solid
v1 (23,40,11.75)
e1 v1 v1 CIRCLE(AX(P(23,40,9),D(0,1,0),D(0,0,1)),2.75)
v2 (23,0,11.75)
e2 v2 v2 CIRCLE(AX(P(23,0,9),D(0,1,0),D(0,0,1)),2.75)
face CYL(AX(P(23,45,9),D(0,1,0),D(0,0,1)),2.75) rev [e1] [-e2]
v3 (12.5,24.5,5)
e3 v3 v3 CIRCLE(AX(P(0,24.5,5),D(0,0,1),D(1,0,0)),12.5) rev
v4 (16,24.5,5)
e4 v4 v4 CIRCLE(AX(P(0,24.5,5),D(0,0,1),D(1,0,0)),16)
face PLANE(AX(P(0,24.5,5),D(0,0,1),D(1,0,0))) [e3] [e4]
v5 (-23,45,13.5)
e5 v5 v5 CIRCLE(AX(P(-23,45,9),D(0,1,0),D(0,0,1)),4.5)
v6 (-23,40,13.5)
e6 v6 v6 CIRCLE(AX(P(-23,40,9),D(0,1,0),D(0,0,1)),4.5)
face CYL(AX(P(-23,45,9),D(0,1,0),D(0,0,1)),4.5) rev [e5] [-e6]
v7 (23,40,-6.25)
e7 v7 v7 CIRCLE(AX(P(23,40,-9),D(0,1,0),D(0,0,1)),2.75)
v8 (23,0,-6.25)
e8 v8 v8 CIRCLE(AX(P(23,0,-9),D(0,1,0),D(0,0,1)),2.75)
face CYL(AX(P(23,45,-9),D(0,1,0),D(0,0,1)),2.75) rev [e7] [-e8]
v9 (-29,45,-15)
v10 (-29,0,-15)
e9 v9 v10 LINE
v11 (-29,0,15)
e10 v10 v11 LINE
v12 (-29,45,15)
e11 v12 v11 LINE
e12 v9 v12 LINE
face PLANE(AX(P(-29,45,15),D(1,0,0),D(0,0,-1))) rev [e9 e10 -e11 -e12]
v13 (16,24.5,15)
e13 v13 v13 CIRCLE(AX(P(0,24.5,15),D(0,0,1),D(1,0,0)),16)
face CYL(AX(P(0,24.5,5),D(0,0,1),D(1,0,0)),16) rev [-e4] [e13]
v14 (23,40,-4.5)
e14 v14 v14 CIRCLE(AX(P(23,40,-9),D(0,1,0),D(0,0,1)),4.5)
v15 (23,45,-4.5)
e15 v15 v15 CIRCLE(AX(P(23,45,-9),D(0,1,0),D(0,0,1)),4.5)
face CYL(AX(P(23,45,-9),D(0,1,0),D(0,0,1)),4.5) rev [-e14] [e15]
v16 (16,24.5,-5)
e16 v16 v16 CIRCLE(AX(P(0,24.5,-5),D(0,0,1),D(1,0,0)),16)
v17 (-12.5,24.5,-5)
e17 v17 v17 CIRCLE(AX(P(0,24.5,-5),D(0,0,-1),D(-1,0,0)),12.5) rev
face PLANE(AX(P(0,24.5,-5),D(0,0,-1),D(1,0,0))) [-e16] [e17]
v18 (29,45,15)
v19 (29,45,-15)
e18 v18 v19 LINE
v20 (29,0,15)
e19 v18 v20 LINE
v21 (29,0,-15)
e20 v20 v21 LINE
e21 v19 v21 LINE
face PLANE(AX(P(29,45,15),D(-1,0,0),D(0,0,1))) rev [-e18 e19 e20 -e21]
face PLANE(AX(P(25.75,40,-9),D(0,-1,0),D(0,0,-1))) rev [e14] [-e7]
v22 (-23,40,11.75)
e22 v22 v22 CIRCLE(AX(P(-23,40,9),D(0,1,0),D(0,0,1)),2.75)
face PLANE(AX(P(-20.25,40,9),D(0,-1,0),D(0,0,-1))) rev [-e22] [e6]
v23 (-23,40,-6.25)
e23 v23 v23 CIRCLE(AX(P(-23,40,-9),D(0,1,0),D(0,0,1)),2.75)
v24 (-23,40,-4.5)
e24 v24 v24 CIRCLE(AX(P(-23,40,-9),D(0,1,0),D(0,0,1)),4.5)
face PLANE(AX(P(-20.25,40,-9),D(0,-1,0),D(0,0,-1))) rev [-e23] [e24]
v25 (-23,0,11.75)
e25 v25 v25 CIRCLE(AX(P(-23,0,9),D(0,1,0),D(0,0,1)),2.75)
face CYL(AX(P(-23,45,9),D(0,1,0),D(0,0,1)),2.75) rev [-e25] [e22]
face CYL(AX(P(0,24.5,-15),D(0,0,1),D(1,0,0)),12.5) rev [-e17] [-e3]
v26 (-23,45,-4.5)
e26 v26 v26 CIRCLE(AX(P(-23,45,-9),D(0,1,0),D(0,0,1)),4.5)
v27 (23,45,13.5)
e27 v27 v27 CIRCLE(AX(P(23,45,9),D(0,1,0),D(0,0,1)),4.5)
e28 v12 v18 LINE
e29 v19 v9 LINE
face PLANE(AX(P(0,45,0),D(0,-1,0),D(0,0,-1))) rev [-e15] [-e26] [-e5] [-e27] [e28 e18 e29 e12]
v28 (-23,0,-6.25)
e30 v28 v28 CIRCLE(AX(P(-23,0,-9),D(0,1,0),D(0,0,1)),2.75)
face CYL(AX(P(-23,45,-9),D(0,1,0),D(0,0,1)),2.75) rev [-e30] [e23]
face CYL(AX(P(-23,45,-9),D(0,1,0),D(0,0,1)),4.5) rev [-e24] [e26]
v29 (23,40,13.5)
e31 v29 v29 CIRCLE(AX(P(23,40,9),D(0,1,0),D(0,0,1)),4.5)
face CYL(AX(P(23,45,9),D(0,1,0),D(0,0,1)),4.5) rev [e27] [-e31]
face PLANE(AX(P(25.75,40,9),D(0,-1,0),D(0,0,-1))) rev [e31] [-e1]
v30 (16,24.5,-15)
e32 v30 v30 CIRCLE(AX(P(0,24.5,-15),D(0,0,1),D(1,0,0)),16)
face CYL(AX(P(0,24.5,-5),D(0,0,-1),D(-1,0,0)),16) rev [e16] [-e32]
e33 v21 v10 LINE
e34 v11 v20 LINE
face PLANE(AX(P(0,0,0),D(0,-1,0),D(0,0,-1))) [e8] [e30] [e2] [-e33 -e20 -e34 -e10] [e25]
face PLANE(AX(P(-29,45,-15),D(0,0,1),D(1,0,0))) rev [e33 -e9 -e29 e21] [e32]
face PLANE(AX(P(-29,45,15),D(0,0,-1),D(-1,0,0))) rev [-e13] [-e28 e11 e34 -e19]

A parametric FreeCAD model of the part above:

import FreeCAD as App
import Part
import Sketcher

doc = App.newDocument("Part")
body = doc.addObject("PartDesign::Body", "Body")

# Sketch on XZ plane
sketch1 = body.newObject("Sketcher::SketchObject", "Sketch")
sketch1.AttachmentSupport = (doc.getObject("XZ_Plane"), [""])
sketch1.MapMode = "FlatFace"
sketch1.addGeometry(Part.LineSegment(App.Vector(-29, -15, 0), App.Vector(-29, 15, 0)), False)
sketch1.addGeometry(Part.LineSegment(App.Vector(-29, 15, 0), App.Vector(29, 15, 0)), False)
sketch1.addGeometry(Part.LineSegment(App.Vector(29, 15, 0), App.Vector(29, -15, 0)), False)
sketch1.addGeometry(Part.LineSegment(App.Vector(29, -15, 0), App.Vector(-29, -15, 0)), False)
sketch1.addConstraint(Sketcher.Constraint("Coincident", 0, 2, 1, 1))
sketch1.addConstraint(Sketcher.Constraint("Coincident", 1, 2, 2, 1))
sketch1.addConstraint(Sketcher.Constraint("Coincident", 2, 2, 3, 1))
sketch1.addConstraint(Sketcher.Constraint("Coincident", 3, 2, 0, 1))
sketch1.addConstraint(Sketcher.Constraint("Vertical", 0))
sketch1.addConstraint(Sketcher.Constraint("Horizontal", 1))
sketch1.addConstraint(Sketcher.Constraint("Vertical", 2))
sketch1.addConstraint(Sketcher.Constraint("Horizontal", 3))
sketch1.addConstraint(Sketcher.Constraint("Symmetric", 0, 2, 2, 2, -1, 1))
sketch1.addConstraint(Sketcher.Constraint("DistanceX", 1, 1, 1, 2, 58.0))
sketch1.addConstraint(Sketcher.Constraint("DistanceY", 0, 1, 0, 2, 30.0))
pad1 = body.newObject("PartDesign::Pad", "Pad")
pad1.Profile = sketch1
pad1.Length = 45
pad1.Reversed = True

# Sketch on XY plane
sketch2 = body.newObject("Sketcher::SketchObject", "Sketch001")
sketch2.AttachmentSupport = (doc.getObject("XY_Plane"), [""])
sketch2.MapMode = "FlatFace"
sketch2.AttachmentOffset = App.Placement(App.Vector(0, 0, 15), App.Rotation())
sketch2.addGeometry(Part.Circle(App.Vector(0, 24, 0), App.Vector(0, 0, 1), 12), False)
sketch2.addConstraint(Sketcher.Constraint("PointOnObject", 0, 3, -2))
sketch2.addConstraint(Sketcher.Constraint("Diameter", 0, 25.0))
sketch2.addConstraint(Sketcher.Constraint("DistanceY", -1, 1, 0, 3, 24.5))
pocket1 = body.newObject("PartDesign::Pocket", "Pocket")
pocket1.Profile = sketch2
pocket1.Type = "ThroughAll"

# Sketch on XY plane
sketch3 = body.newObject("Sketcher::SketchObject", "Sketch002")
sketch3.AttachmentSupport = (doc.getObject("XY_Plane"), [""])
sketch3.MapMode = "FlatFace"
sketch3.AttachmentOffset = App.Placement(App.Vector(0, 0, 15), App.Rotation())
sketch3.addGeometry(Part.Circle(App.Vector(0, 24, 0), App.Vector(0, 0, 1), 16), False)
sketch3.addConstraint(Sketcher.Constraint("PointOnObject", 0, 3, -2))
sketch3.addConstraint(Sketcher.Constraint("Diameter", 0, 32.0))
sketch3.addConstraint(Sketcher.Constraint("DistanceY", -1, 1, 0, 3, 24.5))
pocket2 = body.newObject("PartDesign::Pocket", "Pocket001")
pocket2.Profile = sketch3
pocket2.Length = 10
doc.recompute()

mirrored = body.newObject("PartDesign::Mirrored", "Mirrored")
mirrored.Originals = [pocket2]
mirrored.MirrorPlane = (doc.getObject("XY_Plane"), [""])
body.Tip = mirrored

# Sketch on XZ plane
sketch4 = body.newObject("Sketcher::SketchObject", "Sketch003")
sketch4.AttachmentSupport = (doc.getObject("XZ_Plane"), [""])
sketch4.MapMode = "FlatFace"
sketch4.AttachmentOffset = App.Placement(App.Vector(0, 0, -45), App.Rotation())
sketch4.addGeometry(Part.Circle(App.Vector(-23, 9, 0), App.Vector(0, 0, 1), 2.8), False)
sketch4.addGeometry(Part.Circle(App.Vector(-23, -9, 0), App.Vector(0, 0, 1), 2.8), False)
sketch4.addGeometry(Part.Circle(App.Vector(23, 9, 0), App.Vector(0, 0, 1), 2.8), False)
sketch4.addGeometry(Part.Circle(App.Vector(23, -9, 0), App.Vector(0, 0, 1), 2.8), False)
sketch4.addConstraint(Sketcher.Constraint("Equal", 0, 1))
sketch4.addConstraint(Sketcher.Constraint("Equal", 1, 2))
sketch4.addConstraint(Sketcher.Constraint("Equal", 2, 3))
sketch4.addConstraint(Sketcher.Constraint("Symmetric", 1, 3, 2, 3, -1, 1))
sketch4.addConstraint(Sketcher.Constraint("Symmetric", 0, 3, 3, 3, -1, 1))
sketch4.addConstraint(Sketcher.Constraint("Symmetric", 0, 3, 2, 3, -2))
sketch4.addConstraint(Sketcher.Constraint("Diameter", 0, 5.5))
sketch4.addConstraint(Sketcher.Constraint("DistanceX", 0, 3, -1, 1, 23.0))
sketch4.addConstraint(Sketcher.Constraint("DistanceY", -1, 1, 0, 3, 9.0))
doc.recompute()
hole = body.newObject("PartDesign::Hole", "Hole")
hole.Profile = sketch4
hole.ThreadType = "None"
hole.Diameter = 5.5
hole.DepthType = "ThroughAll"
hole.HoleCutType = "Counterbore"
hole.HoleCutDiameter = 9
hole.HoleCutDepth = 5
hole.Reversed = True

doc.recompute()
